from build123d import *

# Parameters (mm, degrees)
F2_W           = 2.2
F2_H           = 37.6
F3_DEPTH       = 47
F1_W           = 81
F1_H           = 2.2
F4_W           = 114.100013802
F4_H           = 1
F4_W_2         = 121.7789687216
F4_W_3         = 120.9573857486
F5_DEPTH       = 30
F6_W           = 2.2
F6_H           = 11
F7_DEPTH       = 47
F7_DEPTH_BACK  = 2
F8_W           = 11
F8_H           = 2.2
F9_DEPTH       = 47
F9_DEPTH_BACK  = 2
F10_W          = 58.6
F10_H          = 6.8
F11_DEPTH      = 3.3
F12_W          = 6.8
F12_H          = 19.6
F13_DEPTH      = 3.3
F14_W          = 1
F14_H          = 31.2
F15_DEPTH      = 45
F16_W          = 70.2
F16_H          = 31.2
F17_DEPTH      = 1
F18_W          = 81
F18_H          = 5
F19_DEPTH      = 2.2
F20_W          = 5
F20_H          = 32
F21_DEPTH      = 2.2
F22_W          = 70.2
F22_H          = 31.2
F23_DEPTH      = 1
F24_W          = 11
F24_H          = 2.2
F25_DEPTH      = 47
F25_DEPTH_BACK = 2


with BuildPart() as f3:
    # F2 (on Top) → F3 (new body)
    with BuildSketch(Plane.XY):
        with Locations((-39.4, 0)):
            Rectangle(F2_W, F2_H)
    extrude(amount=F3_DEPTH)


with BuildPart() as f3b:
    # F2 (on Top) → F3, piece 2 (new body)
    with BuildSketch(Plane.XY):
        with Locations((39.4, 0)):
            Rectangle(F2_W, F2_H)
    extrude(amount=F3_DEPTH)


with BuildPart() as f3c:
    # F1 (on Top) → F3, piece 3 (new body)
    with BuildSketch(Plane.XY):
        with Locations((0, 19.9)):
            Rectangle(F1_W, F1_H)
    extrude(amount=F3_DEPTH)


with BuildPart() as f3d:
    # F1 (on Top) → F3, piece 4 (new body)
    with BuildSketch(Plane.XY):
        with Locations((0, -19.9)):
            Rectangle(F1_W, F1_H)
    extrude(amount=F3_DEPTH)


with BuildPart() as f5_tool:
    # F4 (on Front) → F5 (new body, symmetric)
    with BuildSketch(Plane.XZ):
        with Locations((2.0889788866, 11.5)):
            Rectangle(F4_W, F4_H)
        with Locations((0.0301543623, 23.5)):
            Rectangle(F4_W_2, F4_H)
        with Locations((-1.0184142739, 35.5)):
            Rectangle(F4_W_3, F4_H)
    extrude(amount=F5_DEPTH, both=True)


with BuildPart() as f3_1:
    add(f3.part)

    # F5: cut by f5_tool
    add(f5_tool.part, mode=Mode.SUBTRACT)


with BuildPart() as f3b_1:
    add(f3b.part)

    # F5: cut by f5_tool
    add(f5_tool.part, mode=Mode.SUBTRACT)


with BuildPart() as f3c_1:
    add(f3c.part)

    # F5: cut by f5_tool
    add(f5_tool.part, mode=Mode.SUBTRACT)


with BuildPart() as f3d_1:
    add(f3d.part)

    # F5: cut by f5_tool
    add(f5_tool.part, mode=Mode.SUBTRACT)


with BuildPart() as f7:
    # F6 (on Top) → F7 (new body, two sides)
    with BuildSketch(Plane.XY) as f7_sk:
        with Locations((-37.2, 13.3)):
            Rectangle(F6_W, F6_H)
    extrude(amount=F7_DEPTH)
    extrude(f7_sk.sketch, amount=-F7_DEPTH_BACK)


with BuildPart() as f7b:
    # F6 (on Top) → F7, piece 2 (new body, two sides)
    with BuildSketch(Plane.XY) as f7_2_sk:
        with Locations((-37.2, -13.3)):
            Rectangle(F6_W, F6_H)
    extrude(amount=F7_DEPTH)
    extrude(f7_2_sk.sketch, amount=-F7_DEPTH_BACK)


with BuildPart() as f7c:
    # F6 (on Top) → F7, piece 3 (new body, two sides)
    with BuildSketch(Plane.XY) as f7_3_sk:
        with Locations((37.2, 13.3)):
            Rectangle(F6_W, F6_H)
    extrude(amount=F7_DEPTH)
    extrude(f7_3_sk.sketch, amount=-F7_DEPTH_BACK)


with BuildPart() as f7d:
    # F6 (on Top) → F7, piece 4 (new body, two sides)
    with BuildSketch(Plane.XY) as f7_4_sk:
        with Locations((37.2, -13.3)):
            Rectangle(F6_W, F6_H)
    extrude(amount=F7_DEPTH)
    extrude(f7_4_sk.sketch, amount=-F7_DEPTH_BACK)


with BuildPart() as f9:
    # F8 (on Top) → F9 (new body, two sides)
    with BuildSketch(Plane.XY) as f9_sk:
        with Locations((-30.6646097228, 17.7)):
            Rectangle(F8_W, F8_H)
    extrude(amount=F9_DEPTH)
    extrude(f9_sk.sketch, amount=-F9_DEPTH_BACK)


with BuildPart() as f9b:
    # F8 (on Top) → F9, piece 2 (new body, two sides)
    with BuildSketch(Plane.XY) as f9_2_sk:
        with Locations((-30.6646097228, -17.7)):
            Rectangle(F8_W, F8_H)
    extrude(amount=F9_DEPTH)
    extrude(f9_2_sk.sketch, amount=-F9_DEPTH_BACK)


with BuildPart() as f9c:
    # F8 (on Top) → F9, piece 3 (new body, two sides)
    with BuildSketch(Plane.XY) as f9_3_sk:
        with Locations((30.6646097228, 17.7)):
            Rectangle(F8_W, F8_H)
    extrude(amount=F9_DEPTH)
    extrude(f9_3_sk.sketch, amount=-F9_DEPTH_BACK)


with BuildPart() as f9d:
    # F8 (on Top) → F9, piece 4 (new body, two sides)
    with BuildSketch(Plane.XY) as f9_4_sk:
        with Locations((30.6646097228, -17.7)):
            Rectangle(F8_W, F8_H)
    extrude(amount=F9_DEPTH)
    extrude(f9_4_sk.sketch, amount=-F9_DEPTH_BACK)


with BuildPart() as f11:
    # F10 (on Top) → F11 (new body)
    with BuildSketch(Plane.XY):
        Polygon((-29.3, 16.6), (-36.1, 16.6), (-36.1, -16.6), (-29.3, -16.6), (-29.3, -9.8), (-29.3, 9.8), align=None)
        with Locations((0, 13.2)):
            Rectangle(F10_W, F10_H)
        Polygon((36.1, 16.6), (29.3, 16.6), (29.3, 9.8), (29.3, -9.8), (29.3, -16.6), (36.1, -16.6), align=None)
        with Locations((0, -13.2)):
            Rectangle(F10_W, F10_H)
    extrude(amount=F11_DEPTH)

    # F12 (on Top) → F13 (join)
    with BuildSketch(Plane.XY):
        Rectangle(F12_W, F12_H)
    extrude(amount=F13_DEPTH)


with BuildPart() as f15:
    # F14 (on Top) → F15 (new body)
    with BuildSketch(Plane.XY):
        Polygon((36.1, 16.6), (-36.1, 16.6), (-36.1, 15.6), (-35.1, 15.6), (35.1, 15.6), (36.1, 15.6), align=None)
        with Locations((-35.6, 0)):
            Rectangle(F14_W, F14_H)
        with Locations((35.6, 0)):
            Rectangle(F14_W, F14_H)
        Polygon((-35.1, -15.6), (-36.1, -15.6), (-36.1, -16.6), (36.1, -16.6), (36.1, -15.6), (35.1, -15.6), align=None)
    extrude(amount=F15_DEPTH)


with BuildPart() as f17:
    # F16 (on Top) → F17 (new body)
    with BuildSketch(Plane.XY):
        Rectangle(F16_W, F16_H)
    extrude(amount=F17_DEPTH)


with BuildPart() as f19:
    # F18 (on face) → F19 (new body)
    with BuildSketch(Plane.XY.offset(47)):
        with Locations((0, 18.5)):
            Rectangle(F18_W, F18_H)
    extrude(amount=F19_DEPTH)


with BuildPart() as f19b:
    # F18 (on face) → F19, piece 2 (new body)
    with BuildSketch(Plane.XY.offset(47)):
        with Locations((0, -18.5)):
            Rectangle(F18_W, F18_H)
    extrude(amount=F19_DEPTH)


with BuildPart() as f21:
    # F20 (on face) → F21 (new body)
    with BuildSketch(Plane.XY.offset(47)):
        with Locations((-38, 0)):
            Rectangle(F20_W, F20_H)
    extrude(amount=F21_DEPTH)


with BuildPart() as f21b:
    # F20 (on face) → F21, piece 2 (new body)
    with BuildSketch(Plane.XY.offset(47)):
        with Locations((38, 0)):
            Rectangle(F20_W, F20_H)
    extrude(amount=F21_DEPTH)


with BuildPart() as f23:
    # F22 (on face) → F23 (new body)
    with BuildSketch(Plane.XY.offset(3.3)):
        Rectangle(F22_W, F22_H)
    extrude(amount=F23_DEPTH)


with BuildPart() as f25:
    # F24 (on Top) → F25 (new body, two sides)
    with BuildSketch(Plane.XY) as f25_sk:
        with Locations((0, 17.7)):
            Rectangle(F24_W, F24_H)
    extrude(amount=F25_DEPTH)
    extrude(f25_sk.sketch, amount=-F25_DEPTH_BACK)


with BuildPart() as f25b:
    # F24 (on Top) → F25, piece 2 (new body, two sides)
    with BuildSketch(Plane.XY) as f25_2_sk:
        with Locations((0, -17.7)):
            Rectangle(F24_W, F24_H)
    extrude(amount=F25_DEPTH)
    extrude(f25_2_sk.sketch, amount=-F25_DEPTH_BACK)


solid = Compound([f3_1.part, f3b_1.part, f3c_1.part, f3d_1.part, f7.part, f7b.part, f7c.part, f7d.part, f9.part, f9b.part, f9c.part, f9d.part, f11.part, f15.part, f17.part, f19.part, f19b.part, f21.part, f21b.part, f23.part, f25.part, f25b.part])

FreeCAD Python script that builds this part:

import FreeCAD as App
import Part
import Sketcher

V = App.Vector
Q = App.Units.Quantity


def add_polygon(sketch, points):
    """Adds a closed chain of lines whose ends are joined by coincident constraints."""
    first, n = sketch.GeometryCount, len(points)
    for a, b in zip(points, points[1:] + points[:1]):
        sketch.addGeometry(Part.LineSegment(App.Vector(*a, 0), App.Vector(*b, 0)), False)
    for i in range(n):
        sketch.addConstraint(Sketcher.Constraint("Coincident", first + i, 2, first + (i + 1) % n, 1))

doc = App.newDocument("Part")
params = doc.addObject("Spreadsheet::Sheet", "Params")
for row, (alias, value) in enumerate([
    ("sketch1_width", "2.2 mm"),
    ("sketch1_height", "37.6 mm"),
    ("pad1_length", "47 mm"),
    ("sketch2_width", "2.2 mm"),
    ("sketch2_height", "37.6 mm"),
    ("pad2_length", "47 mm"),
    ("sketch3_width", "81 mm"),
    ("sketch3_height", "2.2 mm"),
    ("pad3_length", "47 mm"),
    ("sketch4_width", "81 mm"),
    ("sketch4_height", "2.2 mm"),
    ("pad4_length", "47 mm"),
    ("sketch5_height", "1 mm"),
    ("pad5_length", "60 mm"),
    ("sketch6_height", "11 mm"),
    ("sketch6_width", "2.2 mm"),
    ("pad6_length", "47 mm"),
    ("pad6_length2", "2 mm"),
    ("sketch7_height", "11 mm"),
    ("sketch7_width", "2.2 mm"),
    ("pad7_length", "47 mm"),
    ("pad7_length2", "2 mm"),
    ("sketch8_height", "11 mm"),
    ("sketch8_width", "2.2 mm"),
    ("pad8_length", "47 mm"),
    ("pad8_length2", "2 mm"),
    ("sketch9_height", "11 mm"),
    ("sketch9_width", "2.2 mm"),
    ("pad9_length", "47 mm"),
    ("pad9_length2", "2 mm"),
    ("sketch10_width", "11 mm"),
    ("sketch10_height", "2.2 mm"),
    ("pad10_length", "47 mm"),
    ("pad10_length2", "2 mm"),
    ("sketch11_width", "11 mm"),
    ("sketch11_height", "2.2 mm"),
    ("pad11_length", "47 mm"),
    ("pad11_length2", "2 mm"),
    ("sketch12_width", "11 mm"),
    ("sketch12_height", "2.2 mm"),
    ("pad12_length", "47 mm"),
    ("pad12_length2", "2 mm"),
    ("sketch13_width", "11 mm"),
    ("sketch13_height", "2.2 mm"),
    ("pad13_length", "47 mm"),
    ("pad13_length2", "2 mm"),
    ("sketch14_width", "72.2 mm"),
    ("sketch14_width2", "58.6 mm"),
    ("sketch14_height", "33.2 mm"),
    ("sketch14_height2", "19.6 mm"),
    ("pad14_length", "3.3 mm"),
    ("sketch15_width", "6.8 mm"),
    ("sketch15_height", "19.6 mm"),
    ("pad15_length", "3.3 mm"),
    ("sketch16_width", "72.2 mm"),
    ("sketch16_width2", "70.2 mm"),
    ("sketch16_height", "33.2 mm"),
    ("sketch16_height2", "31.2 mm"),
    ("pad16_length", "45 mm"),
    ("sketch17_width", "70.2 mm"),
    ("sketch17_height", "31.2 mm"),
    ("pad17_length", "1 mm"),
    ("sketch18_width", "81 mm"),
    ("sketch18_height", "5 mm"),
    ("pad18_length", "2.2 mm"),
    ("sketch19_width", "81 mm"),
    ("sketch19_height", "5 mm"),
    ("pad19_length", "2.2 mm"),
    ("sketch20_width", "5 mm"),
    ("sketch20_height", "32 mm"),
    ("pad20_length", "2.2 mm"),
    ("sketch21_width", "5 mm"),
    ("sketch21_height", "32 mm"),
    ("pad21_length", "2.2 mm"),
    ("sketch22_width", "70.2 mm"),
    ("sketch22_height", "31.2 mm"),
    ("pad22_length", "1 mm"),
    ("sketch23_width", "11 mm"),
    ("sketch23_height", "2.2 mm"),
    ("pad23_length", "47 mm"),
    ("pad23_length2", "2 mm"),
    ("sketch24_width", "11 mm"),
    ("sketch24_height", "2.2 mm"),
    ("pad24_length", "47 mm"),
    ("pad24_length2", "2 mm"),
], start=1):
    params.set(f"A{row}", alias)
    params.set(f"B{row}", "=" + value)
    params.setAlias(f"B{row}", alias)

body = doc.addObject("PartDesign::Body", "Body")

# Sketch on XY plane
sketch1 = doc.addObject("Sketcher::SketchObject", "Sketch")
body.addObject(sketch1)
sketch1.AttachmentSupport = (doc.XY_Plane, [""])
sketch1.MapMode = "FlatFace"
add_polygon(sketch1, [(-40.5, 18.8), (-40.5, -18.8), (-38.3, -18.8), (-38.3, 18.8)])  # lines 0-3
sketch1.addConstraint([
    Sketcher.Constraint("Vertical", 0),
    Sketcher.Constraint("Horizontal", 1),
    Sketcher.Constraint("Vertical", 2),
    Sketcher.Constraint("Horizontal", 3),
    Sketcher.Constraint("DistanceX", 1, 1, 1, 2, Q("2.2 mm")),
    Sketcher.Constraint("DistanceY", 0, 2, 0, 1, Q("37.6 mm")),
    Sketcher.Constraint("DistanceX", 0, 2, -1, 1, Q("40.5 mm")),
    Sketcher.Constraint("DistanceY", 0, 2, -1, 1, Q("18.8 mm")),
])
sketch1.setExpression("Constraints[8]", "Params.sketch1_width")
sketch1.setExpression("Constraints[9]", "Params.sketch1_height")
pad1 = doc.addObject("PartDesign::Pad", "Pad")
body.addObject(pad1)
pad1.Profile = sketch1
pad1.setExpression("Length", "Params.pad1_length")
body2 = doc.addObject("PartDesign::Body", "Body001")

# Sketch on XY plane
sketch2 = doc.addObject("Sketcher::SketchObject", "Sketch001")
body2.addObject(sketch2)
sketch2.AttachmentSupport = (doc.getObject("XY_Plane001"), [""])
sketch2.MapMode = "FlatFace"
add_polygon(sketch2, [(38.3, 18.8), (38.3, -18.8), (40.5, -18.8), (40.5, 18.8)])  # lines 0-3
sketch2.addConstraint([
    Sketcher.Constraint("Vertical", 0),
    Sketcher.Constraint("Horizontal", 1),
    Sketcher.Constraint("Vertical", 2),
    Sketcher.Constraint("Horizontal", 3),
    Sketcher.Constraint("DistanceX", 1, 1, 1, 2, Q("2.2 mm")),
    Sketcher.Constraint("DistanceY", 0, 2, 0, 1, Q("37.6 mm")),
    Sketcher.Constraint("DistanceX", -1, 1, 0, 2, Q("38.3 mm")),
    Sketcher.Constraint("DistanceY", 0, 2, -1, 1, Q("18.8 mm")),
])
sketch2.setExpression("Constraints[8]", "Params.sketch2_width")
sketch2.setExpression("Constraints[9]", "Params.sketch2_height")
pad2 = doc.addObject("PartDesign::Pad", "Pad001")
body2.addObject(pad2)
pad2.Profile = sketch2
pad2.setExpression("Length", "Params.pad2_length")
body3 = doc.addObject("PartDesign::Body", "Body002")

# Sketch on XY plane
sketch3 = doc.addObject("Sketcher::SketchObject", "Sketch002")
body3.addObject(sketch3)
sketch3.AttachmentSupport = (doc.getObject("XY_Plane002"), [""])
sketch3.MapMode = "FlatFace"
add_polygon(sketch3, [(-40.5, 21), (-40.5, 18.8), (40.5, 18.8), (40.5, 21)])  # lines 0-3
sketch3.addConstraint([
    Sketcher.Constraint("Vertical", 0),
    Sketcher.Constraint("Horizontal", 1),
    Sketcher.Constraint("Vertical", 2),
    Sketcher.Constraint("Horizontal", 3),
    Sketcher.Constraint("DistanceX", 1, 1, 1, 2, Q("81 mm")),
    Sketcher.Constraint("DistanceY", 0, 2, 0, 1, Q("2.2 mm")),
    Sketcher.Constraint("DistanceY", -1, 1, 2, 2, Q("21 mm")),
    Sketcher.Constraint("DistanceX", 0, 2, -1, 1, Q("40.5 mm")),
])
sketch3.setExpression("Constraints[8]", "Params.sketch3_width")
sketch3.setExpression("Constraints[9]", "Params.sketch3_height")
pad3 = doc.addObject("PartDesign::Pad", "Pad002")
body3.addObject(pad3)
pad3.Profile = sketch3
pad3.setExpression("Length", "Params.pad3_length")
body4 = doc.addObject("PartDesign::Body", "Body003")

# Sketch on XY plane
sketch4 = doc.addObject("Sketcher::SketchObject", "Sketch003")
body4.addObject(sketch4)
sketch4.AttachmentSupport = (doc.getObject("XY_Plane003"), [""])
sketch4.MapMode = "FlatFace"
add_polygon(sketch4, [(-40.5, -18.8), (-40.5, -21), (40.5, -21), (40.5, -18.8)])  # lines 0-3
sketch4.addConstraint([
    Sketcher.Constraint("Vertical", 0),
    Sketcher.Constraint("Horizontal", 1),
    Sketcher.Constraint("Vertical", 2),
    Sketcher.Constraint("Horizontal", 3),
    Sketcher.Constraint("DistanceX", 1, 1, 1, 2, Q("81 mm")),
    Sketcher.Constraint("DistanceY", 0, 2, 0, 1, Q("2.2 mm")),
    Sketcher.Constraint("DistanceY", 0, 2, -1, 1, Q("21 mm")),
    Sketcher.Constraint("DistanceX", 0, 2, -1, 1, Q("40.5 mm")),
])
sketch4.setExpression("Constraints[8]", "Params.sketch4_width")
sketch4.setExpression("Constraints[9]", "Params.sketch4_height")
pad4 = doc.addObject("PartDesign::Pad", "Pad003")
body4.addObject(pad4)
pad4.Profile = sketch4
pad4.setExpression("Length", "Params.pad4_length")
body5 = doc.addObject("PartDesign::Body", "Body004")
body5.AllowCompound = True

# Sketch on XZ plane
sketch5 = doc.addObject("Sketcher::SketchObject", "Sketch004")
body5.addObject(sketch5)
sketch5.AttachmentSupport = (doc.getObject("XZ_Plane004"), [""])
sketch5.MapMode = "FlatFace"
add_polygon(sketch5, [(-55, 12), (-55, 11), (59.1, 11), (59.1, 12)])  # lines 0-3
add_polygon(sketch5, [(-60.9, 24), (-60.9, 23), (60.9, 23), (60.9, 24)])  # lines 4-7
add_polygon(sketch5, [(-61.5, 36), (-61.5, 35), (59.5, 35), (59.5, 36)])  # lines 8-11
sketch5.addConstraint([
    Sketcher.Constraint("Vertical", 0),
    Sketcher.Constraint("Horizontal", 1),
    Sketcher.Constraint("Vertical", 2),
    Sketcher.Constraint("Horizontal", 3),
    Sketcher.Constraint("Vertical", 4),
    Sketcher.Constraint("Horizontal", 5),
    Sketcher.Constraint("Vertical", 6),
    Sketcher.Constraint("Horizontal", 7),
    Sketcher.Constraint("Vertical", 8),
    Sketcher.Constraint("Horizontal", 9),
    Sketcher.Constraint("Vertical", 10),
    Sketcher.Constraint("Horizontal", 11),
    Sketcher.Constraint("Equal", 2, 4),
    Sketcher.Constraint("Equal", 6, 8),
    Sketcher.Constraint("DistanceY", 0, 2, 0, 1, Q("1 mm")),
    Sketcher.Constraint("DistanceY", -1, 1, 0, 2, Q("11 mm")),
    Sketcher.Constraint("DistanceY", -1, 1, 4, 2, Q("23 mm")),
    Sketcher.Constraint("DistanceY", -1, 1, 8, 2, Q("35 mm")),
    Sketcher.Constraint("DistanceX", 5, 1, 5, 2, Q("121.778969 mm")),
    Sketcher.Constraint("DistanceX", 4, 2, 3, 2, Q("5.898302 mm")),
    Sketcher.Constraint("DistanceX", 1, 1, 1, 2, Q("114.100014 mm")),
    Sketcher.Constraint("DistanceX", 9, 1, 9, 2, Q("120.957386 mm")),
    Sketcher.Constraint("DistanceX", 0, 2, -1, 1, Q("54.961028 mm")),
    Sketcher.Constraint("DistanceX", -1, 1, 9, 2, Q("59.460279 mm")),
])
sketch5.setExpression("Constraints[26]", "Params.sketch5_height")
pad5 = doc.addObject("PartDesign::Pad", "Pad004")
body5.addObject(pad5)
pad5.Profile = sketch5
pad5.setExpression("Length", "Params.pad5_length")
pad5.Midplane = True
body.AllowCompound = True
doc.recompute()

body6 = doc.addObject("PartDesign::Body", "Body005")
body6.BaseFeature = body5
boolean = doc.addObject("PartDesign::Boolean", "Boolean")
body.addObject(boolean)
boolean.Type = "Cut"
boolean.addObjects([body6])
doc.recompute()
body2.AllowCompound = True
doc.recompute()

body7 = doc.addObject("PartDesign::Body", "Body006")
body7.BaseFeature = body5
boolean2 = doc.addObject("PartDesign::Boolean", "Boolean001")
body2.addObject(boolean2)
boolean2.Type = "Cut"
boolean2.addObjects([body7])
doc.recompute()
body3.AllowCompound = True
doc.recompute()

body8 = doc.addObject("PartDesign::Body", "Body007")
body8.BaseFeature = body5
boolean3 = doc.addObject("PartDesign::Boolean", "Boolean002")
body3.addObject(boolean3)
boolean3.Type = "Cut"
boolean3.addObjects([body8])
doc.recompute()
body4.AllowCompound = True
doc.recompute()

boolean4 = doc.addObject("PartDesign::Boolean", "Boolean003")
body4.addObject(boolean4)
boolean4.Type = "Cut"
boolean4.addObjects([body5])
body9 = doc.addObject("PartDesign::Body", "Body008")

# Sketch on XY plane
sketch6 = doc.addObject("Sketcher::SketchObject", "Sketch005")
body9.addObject(sketch6)
sketch6.AttachmentSupport = (doc.getObject("XY_Plane008"), [""])
sketch6.MapMode = "FlatFace"
add_polygon(sketch6, [(-38.3, 18.8), (-38.3, 7.8), (-36.1, 7.8), (-36.1, 18.8)])  # lines 0-3
sketch6.addConstraint([
    Sketcher.Constraint("Vertical", 0),
    Sketcher.Constraint("Horizontal", 1),
    Sketcher.Constraint("Vertical", 2),
    Sketcher.Constraint("Horizontal", 3),
    Sketcher.Constraint("DistanceY", 0, 2, 0, 1, Q("11 mm")),
    Sketcher.Constraint("DistanceX", 1, 1, 1, 2, Q("2.2 mm")),
    Sketcher.Constraint("DistanceX", 0, 2, -1, 1, Q("38.3 mm")),
    Sketcher.Constraint("DistanceY", -1, 1, 0, 2, Q("7.8 mm")),
])
sketch6.setExpression("Constraints[8]", "Params.sketch6_height")
sketch6.setExpression("Constraints[9]", "Params.sketch6_width")
pad6 = doc.addObject("PartDesign::Pad", "Pad005")
body9.addObject(pad6)
pad6.Profile = sketch6
pad6.Type = "TwoLengths"
pad6.setExpression("Length", "Params.pad6_length")
pad6.setExpression("Length2", "Params.pad6_length2")
body10 = doc.addObject("PartDesign::Body", "Body009")

# Sketch on XY plane
sketch7 = doc.addObject("Sketcher::SketchObject", "Sketch006")
body10.addObject(sketch7)
sketch7.AttachmentSupport = (doc.getObject("XY_Plane009"), [""])
sketch7.MapMode = "FlatFace"
add_polygon(sketch7, [(-38.3, -7.8), (-38.3, -18.8), (-36.1, -18.8), (-36.1, -7.8)])  # lines 0-3
sketch7.addConstraint([
    Sketcher.Constraint("Vertical", 0),
    Sketcher.Constraint("Horizontal", 1),
    Sketcher.Constraint("Vertical", 2),
    Sketcher.Constraint("Horizontal", 3),
    Sketcher.Constraint("DistanceY", 0, 2, 0, 1, Q("11 mm")),
    Sketcher.Constraint("DistanceX", 1, 1, 1, 2, Q("2.2 mm")),
    Sketcher.Constraint("DistanceX", 0, 2, -1, 1, Q("38.3 mm")),
    Sketcher.Constraint("DistanceY", 0, 2, -1, 1, Q("18.8 mm")),
])
sketch7.setExpression("Constraints[8]", "Params.sketch7_height")
sketch7.setExpression("Constraints[9]", "Params.sketch7_width")
pad7 = doc.addObject("PartDesign::Pad", "Pad006")
body10.addObject(pad7)
pad7.Profile = sketch7
pad7.Type = "TwoLengths"
pad7.setExpression("Length", "Params.pad7_length")
pad7.setExpression("Length2", "Params.pad7_length2")
body11 = doc.addObject("PartDesign::Body", "Body010")

# Sketch on XY plane
sketch8 = doc.addObject("Sketcher::SketchObject", "Sketch007")
body11.addObject(sketch8)
sketch8.AttachmentSupport = (doc.getObject("XY_Plane010"), [""])
sketch8.MapMode = "FlatFace"
add_polygon(sketch8, [(36.1, 18.8), (36.1, 7.8), (38.3, 7.8), (38.3, 18.8)])  # lines 0-3
sketch8.addConstraint([
    Sketcher.Constraint("Vertical", 0),
    Sketcher.Constraint("Horizontal", 1),
    Sketcher.Constraint("Vertical", 2),
    Sketcher.Constraint("Horizontal", 3),
    Sketcher.Constraint("DistanceY", 0, 2, 0, 1, Q("11 mm")),
    Sketcher.Constraint("DistanceX", 1, 1, 1, 2, Q("2.2 mm")),
    Sketcher.Constraint("DistanceX", -1, 1, 0, 2, Q("36.1 mm")),
    Sketcher.Constraint("DistanceY", -1, 1, 0, 2, Q("7.8 mm")),
])
sketch8.setExpression("Constraints[8]", "Params.sketch8_height")
sketch8.setExpression("Constraints[9]", "Params.sketch8_width")
pad8 = doc.addObject("PartDesign::Pad", "Pad007")
body11.addObject(pad8)
pad8.Profile = sketch8
pad8.Type = "TwoLengths"
pad8.setExpression("Length", "Params.pad8_length")
pad8.setExpression("Length2", "Params.pad8_length2")
body12 = doc.addObject("PartDesign::Body", "Body011")

# Sketch on XY plane
sketch9 = doc.addObject("Sketcher::SketchObject", "Sketch008")
body12.addObject(sketch9)
sketch9.AttachmentSupport = (doc.getObject("XY_Plane011"), [""])
sketch9.MapMode = "FlatFace"
add_polygon(sketch9, [(36.1, -7.8), (36.1, -18.8), (38.3, -18.8), (38.3, -7.8)])  # lines 0-3
sketch9.addConstraint([
    Sketcher.Constraint("Vertical", 0),
    Sketcher.Constraint("Horizontal", 1),
    Sketcher.Constraint("Vertical", 2),
    Sketcher.Constraint("Horizontal", 3),
    Sketcher.Constraint("DistanceY", 0, 2, 0, 1, Q("11 mm")),
    Sketcher.Constraint("DistanceX", 1, 1, 1, 2, Q("2.2 mm")),
    Sketcher.Constraint("DistanceX", -1, 1, 0, 2, Q("36.1 mm")),
    Sketcher.Constraint("DistanceY", 0, 2, -1, 1, Q("18.8 mm")),
])
sketch9.setExpression("Constraints[8]", "Params.sketch9_height")
sketch9.setExpression("Constraints[9]", "Params.sketch9_width")
pad9 = doc.addObject("PartDesign::Pad", "Pad008")
body12.addObject(pad9)
pad9.Profile = sketch9
pad9.Type = "TwoLengths"
pad9.setExpression("Length", "Params.pad9_length")
pad9.setExpression("Length2", "Params.pad9_length2")
body13 = doc.addObject("PartDesign::Body", "Body012")

# Sketch on XY plane
sketch10 = doc.addObject("Sketcher::SketchObject", "Sketch009")
body13.addObject(sketch10)
sketch10.AttachmentSupport = (doc.getObject("XY_Plane012"), [""])
sketch10.MapMode = "FlatFace"
add_polygon(sketch10, [(-36.2, 18.8), (-36.2, 16.6), (-25.2, 16.6), (-25.2, 18.8)])  # lines 0-3
sketch10.addConstraint([
    Sketcher.Constraint("Vertical", 0),
    Sketcher.Constraint("Horizontal", 1),
    Sketcher.Constraint("Vertical", 2),
    Sketcher.Constraint("Horizontal", 3),
    Sketcher.Constraint("DistanceX", 1, 1, 1, 2, Q("11 mm")),
    Sketcher.Constraint("DistanceY", 0, 2, 0, 1, Q("2.2 mm")),
    Sketcher.Constraint("DistanceY", -1, 1, 0, 2, Q("16.6 mm")),
    Sketcher.Constraint("DistanceX", 0, 2, -1, 1, Q("36.16461 mm")),
])
sketch10.setExpression("Constraints[8]", "Params.sketch10_width")
sketch10.setExpression("Constraints[9]", "Params.sketch10_height")
pad10 = doc.addObject("PartDesign::Pad", "Pad009")
body13.addObject(pad10)
pad10.Profile = sketch10
pad10.Type = "TwoLengths"
pad10.setExpression("Length", "Params.pad10_length")
pad10.setExpression("Length2", "Params.pad10_length2")
body14 = doc.addObject("PartDesign::Body", "Body013")

# Sketch on XY plane
sketch11 = doc.addObject("Sketcher::SketchObject", "Sketch010")
body14.addObject(sketch11)
sketch11.AttachmentSupport = (doc.getObject("XY_Plane013"), [""])
sketch11.MapMode = "FlatFace"
add_polygon(sketch11, [(-36.2, -16.6), (-36.2, -18.8), (-25.2, -18.8), (-25.2, -16.6)])  # lines 0-3
sketch11.addConstraint([
    Sketcher.Constraint("Vertical", 0),
    Sketcher.Constraint("Horizontal", 1),
    Sketcher.Constraint("Vertical", 2),
    Sketcher.Constraint("Horizontal", 3),
    Sketcher.Constraint("DistanceX", 1, 1, 1, 2, Q("11 mm")),
    Sketcher.Constraint("DistanceY", 0, 2, 0, 1, Q("2.2 mm")),
    Sketcher.Constraint("DistanceY", 0, 2, -1, 1, Q("18.8 mm")),
    Sketcher.Constraint("DistanceX", 0, 2, -1, 1, Q("36.16461 mm")),
])
sketch11.setExpression("Constraints[8]", "Params.sketch11_width")
sketch11.setExpression("Constraints[9]", "Params.sketch11_height")
pad11 = doc.addObject("PartDesign::Pad", "Pad010")
body14.addObject(pad11)
pad11.Profile = sketch11
pad11.Type = "TwoLengths"
pad11.setExpression("Length", "Params.pad11_length")
pad11.setExpression("Length2", "Params.pad11_length2")
body15 = doc.addObject("PartDesign::Body", "Body014")

# Sketch on XY plane
sketch12 = doc.addObject("Sketcher::SketchObject", "Sketch011")
body15.addObject(sketch12)
sketch12.AttachmentSupport = (doc.getObject("XY_Plane014"), [""])
sketch12.MapMode = "FlatFace"
add_polygon(sketch12, [(25.2, 18.8), (25.2, 16.6), (36.2, 16.6), (36.2, 18.8)])  # lines 0-3
sketch12.addConstraint([
    Sketcher.Constraint("Vertical", 0),
    Sketcher.Constraint("Horizontal", 1),
    Sketcher.Constraint("Vertical", 2),
    Sketcher.Constraint("Horizontal", 3),
    Sketcher.Constraint("DistanceX", 1, 1, 1, 2, Q("11 mm")),
    Sketcher.Constraint("DistanceY", 0, 2, 0, 1, Q("2.2 mm")),
    Sketcher.Constraint("DistanceY", -1, 1, 0, 2, Q("16.6 mm")),
    Sketcher.Constraint("DistanceX", -1, 1, 0, 2, Q("25.16461 mm")),
])
sketch12.setExpression("Constraints[8]", "Params.sketch12_width")
sketch12.setExpression("Constraints[9]", "Params.sketch12_height")
pad12 = doc.addObject("PartDesign::Pad", "Pad011")
body15.addObject(pad12)
pad12.Profile = sketch12
pad12.Type = "TwoLengths"
pad12.setExpression("Length", "Params.pad12_length")
pad12.setExpression("Length2", "Params.pad12_length2")
body16 = doc.addObject("PartDesign::Body", "Body015")

# Sketch on XY plane
sketch13 = doc.addObject("Sketcher::SketchObject", "Sketch012")
body16.addObject(sketch13)
sketch13.AttachmentSupport = (doc.getObject("XY_Plane015"), [""])
sketch13.MapMode = "FlatFace"
add_polygon(sketch13, [(25.2, -16.6), (25.2, -18.8), (36.2, -18.8), (36.2, -16.6)])  # lines 0-3
sketch13.addConstraint([
    Sketcher.Constraint("Vertical", 0),
    Sketcher.Constraint("Horizontal", 1),
    Sketcher.Constraint("Vertical", 2),
    Sketcher.Constraint("Horizontal", 3),
    Sketcher.Constraint("DistanceX", 1, 1, 1, 2, Q("11 mm")),
    Sketcher.Constraint("DistanceY", 0, 2, 0, 1, Q("2.2 mm")),
    Sketcher.Constraint("DistanceY", 0, 2, -1, 1, Q("18.8 mm")),
    Sketcher.Constraint("DistanceX", -1, 1, 0, 2, Q("25.16461 mm")),
])
sketch13.setExpression("Constraints[8]", "Params.sketch13_width")
sketch13.setExpression("Constraints[9]", "Params.sketch13_height")
pad13 = doc.addObject("PartDesign::Pad", "Pad012")
body16.addObject(pad13)
pad13.Profile = sketch13
pad13.Type = "TwoLengths"
pad13.setExpression("Length", "Params.pad13_length")
pad13.setExpression("Length2", "Params.pad13_length2")
body17 = doc.addObject("PartDesign::Body", "Body016")

# Sketch on XY plane
sketch14 = doc.addObject("Sketcher::SketchObject", "Sketch013")
body17.addObject(sketch14)
sketch14.AttachmentSupport = (doc.getObject("XY_Plane016"), [""])
sketch14.MapMode = "FlatFace"
add_polygon(sketch14, [(-36, 17), (-36, -17), (36, -17), (36, 17)])  # lines 0-3
add_polygon(sketch14, [(-29, -10), (-29, 10), (29, 10), (29, -10)])  # lines 4-7
sketch14.addConstraint([
    Sketcher.Constraint("Vertical", 0),
    Sketcher.Constraint("Horizontal", 1),
    Sketcher.Constraint("Vertical", 2),
    Sketcher.Constraint("Horizontal", 3),
    Sketcher.Constraint("Vertical", 4),
    Sketcher.Constraint("Horizontal", 5),
    Sketcher.Constraint("Vertical", 6),
    Sketcher.Constraint("Horizontal", 7),
    Sketcher.Constraint("Symmetric", 0, 2, 2, 2, -1, 1),
    Sketcher.Constraint("Symmetric", 4, 2, 6, 2, -1, 1),
    Sketcher.Constraint("DistanceX", 1, 1, 1, 2, Q("72.2 mm")),
    Sketcher.Constraint("DistanceX", 5, 1, 5, 2, Q("58.6 mm")),
    Sketcher.Constraint("DistanceY", 0, 2, 0, 1, Q("33.2 mm")),
    Sketcher.Constraint("DistanceY", 4, 1, 4, 2, Q("19.6 mm")),
])
sketch14.setExpression("Constraints[18]", "Params.sketch14_width")
sketch14.setExpression("Constraints[19]", "Params.sketch14_width2")
sketch14.setExpression("Constraints[20]", "Params.sketch14_height")
sketch14.setExpression("Constraints[21]", "Params.sketch14_height2")
pad14 = doc.addObject("PartDesign::Pad", "Pad013")
body17.addObject(pad14)
pad14.Profile = sketch14
pad14.setExpression("Length", "Params.pad14_length")

# Sketch on XY plane
sketch15 = doc.addObject("Sketcher::SketchObject", "Sketch014")
body17.addObject(sketch15)
sketch15.AttachmentSupport = (doc.getObject("XY_Plane016"), [""])
sketch15.MapMode = "FlatFace"
add_polygon(sketch15, [(-3, 10), (-3, -10), (3, -10), (3, 10)])  # lines 0-3
sketch15.addConstraint([
    Sketcher.Constraint("Vertical", 0),
    Sketcher.Constraint("Horizontal", 1),
    Sketcher.Constraint("Vertical", 2),
    Sketcher.Constraint("Horizontal", 3),
    Sketcher.Constraint("Symmetric", 0, 2, 2, 2, -1, 1),
    Sketcher.Constraint("DistanceX", 1, 1, 1, 2, Q("6.8 mm")),
    Sketcher.Constraint("DistanceY", 0, 2, 0, 1, Q("19.6 mm")),
])
sketch15.setExpression("Constraints[9]", "Params.sketch15_width")
sketch15.setExpression("Constraints[10]", "Params.sketch15_height")
pad15 = doc.addObject("PartDesign::Pad", "Pad014")
body17.addObject(pad15)
pad15.Profile = sketch15
pad15.setExpression("Length", "Params.pad15_length")
body18 = doc.addObject("PartDesign::Body", "Body017")

# Sketch on XY plane
sketch16 = doc.addObject("Sketcher::SketchObject", "Sketch015")
body18.addObject(sketch16)
sketch16.AttachmentSupport = (doc.getObject("XY_Plane017"), [""])
sketch16.MapMode = "FlatFace"
add_polygon(sketch16, [(36, 17), (-36, 17), (-36, -17), (36, -17)])  # lines 0-3
add_polygon(sketch16, [(-35, -16), (-35, 16), (35, 16), (35, -16)])  # lines 4-7
sketch16.addConstraint([
    Sketcher.Constraint("Horizontal", 0),
    Sketcher.Constraint("Vertical", 1),
    Sketcher.Constraint("Horizontal", 2),
    Sketcher.Constraint("Vertical", 3),
    Sketcher.Constraint("Vertical", 4),
    Sketcher.Constraint("Horizontal", 5),
    Sketcher.Constraint("Vertical", 6),
    Sketcher.Constraint("Horizontal", 7),
    Sketcher.Constraint("Symmetric", 0, 2, 2, 2, -1, 1),
    Sketcher.Constraint("Symmetric", 4, 2, 6, 2, -1, 1),
    Sketcher.Constraint("DistanceX", 0, 2, 0, 1, Q("72.2 mm")),
    Sketcher.Constraint("DistanceX", 5, 1, 5, 2, Q("70.2 mm")),
    Sketcher.Constraint("DistanceY", 1, 2, 1, 1, Q("33.2 mm")),
    Sketcher.Constraint("DistanceY", 4, 1, 4, 2, Q("31.2 mm")),
])
sketch16.setExpression("Constraints[18]", "Params.sketch16_width")
sketch16.setExpression("Constraints[19]", "Params.sketch16_width2")
sketch16.setExpression("Constraints[20]", "Params.sketch16_height")
sketch16.setExpression("Constraints[21]", "Params.sketch16_height2")
pad16 = doc.addObject("PartDesign::Pad", "Pad015")
body18.addObject(pad16)
pad16.Profile = sketch16
pad16.setExpression("Length", "Params.pad16_length")
body19 = doc.addObject("PartDesign::Body", "Body018")

# Sketch on XY plane
sketch17 = doc.addObject("Sketcher::SketchObject", "Sketch016")
body19.addObject(sketch17)
sketch17.AttachmentSupport = (doc.getObject("XY_Plane018"), [""])
sketch17.MapMode = "FlatFace"
add_polygon(sketch17, [(-35, 16), (-35, -16), (35, -16), (35, 16)])  # lines 0-3
sketch17.addConstraint([
    Sketcher.Constraint("Vertical", 0),
    Sketcher.Constraint("Horizontal", 1),
    Sketcher.Constraint("Vertical", 2),
    Sketcher.Constraint("Horizontal", 3),
    Sketcher.Constraint("Symmetric", 0, 2, 2, 2, -1, 1),
    Sketcher.Constraint("DistanceX", 1, 1, 1, 2, Q("70.2 mm")),
    Sketcher.Constraint("DistanceY", 0, 2, 0, 1, Q("31.2 mm")),
])
sketch17.setExpression("Constraints[9]", "Params.sketch17_width")
sketch17.setExpression("Constraints[10]", "Params.sketch17_height")
pad17 = doc.addObject("PartDesign::Pad", "Pad016")
body19.addObject(pad17)
pad17.Profile = sketch17
pad17.setExpression("Length", "Params.pad17_length")
body20 = doc.addObject("PartDesign::Body", "Body019")

# Sketch on XY plane
sketch18 = doc.addObject("Sketcher::SketchObject", "Sketch017")
body20.addObject(sketch18)
sketch18.AttachmentSupport = (doc.getObject("XY_Plane019"), [""])
sketch18.MapMode = "FlatFace"
sketch18.AttachmentOffset = App.Placement(V(0, 0, 47), App.Rotation())
add_polygon(sketch18, [(-40, 21), (-40, 16), (40, 16), (40, 21)])  # lines 0-3
sketch18.addConstraint([
    Sketcher.Constraint("Vertical", 0),
    Sketcher.Constraint("Horizontal", 1),
    Sketcher.Constraint("Vertical", 2),
    Sketcher.Constraint("Horizontal", 3),
    Sketcher.Constraint("DistanceX", 1, 1, 1, 2, Q("81 mm")),
    Sketcher.Constraint("DistanceY", 0, 2, 0, 1, Q("5 mm")),
    Sketcher.Constraint("DistanceY", -1, 1, 0, 2, Q("16 mm")),
    Sketcher.Constraint("DistanceX", 0, 2, -1, 1, Q("40.5 mm")),
])
sketch18.setExpression("Constraints[8]", "Params.sketch18_width")
sketch18.setExpression("Constraints[9]", "Params.sketch18_height")
pad18 = doc.addObject("PartDesign::Pad", "Pad017")
body20.addObject(pad18)
pad18.Profile = sketch18
pad18.setExpression("Length", "Params.pad18_length")
body21 = doc.addObject("PartDesign::Body", "Body020")

# Sketch on XY plane
sketch19 = doc.addObject("Sketcher::SketchObject", "Sketch018")
body21.addObject(sketch19)
sketch19.AttachmentSupport = (doc.getObject("XY_Plane020"), [""])
sketch19.MapMode = "FlatFace"
sketch19.AttachmentOffset = App.Placement(V(0, 0, 47), App.Rotation())
add_polygon(sketch19, [(-40, -16), (-40, -21), (40, -21), (40, -16)])  # lines 0-3
sketch19.addConstraint([
    Sketcher.Constraint("Vertical", 0),
    Sketcher.Constraint("Horizontal", 1),
    Sketcher.Constraint("Vertical", 2),
    Sketcher.Constraint("Horizontal", 3),
    Sketcher.Constraint("DistanceX", 1, 1, 1, 2, Q("81 mm")),
    Sketcher.Constraint("DistanceY", 0, 2, 0, 1, Q("5 mm")),
    Sketcher.Constraint("DistanceY", 0, 2, -1, 1, Q("21 mm")),
    Sketcher.Constraint("DistanceX", 0, 2, -1, 1, Q("40.5 mm")),
])
sketch19.setExpression("Constraints[8]", "Params.sketch19_width")
sketch19.setExpression("Constraints[9]", "Params.sketch19_height")
pad19 = doc.addObject("PartDesign::Pad", "Pad018")
body21.addObject(pad19)
pad19.Profile = sketch19
pad19.setExpression("Length", "Params.pad19_length")
body22 = doc.addObject("PartDesign::Body", "Body021")

# Sketch on XY plane
sketch20 = doc.addObject("Sketcher::SketchObject", "Sketch019")
body22.addObject(sketch20)
sketch20.AttachmentSupport = (doc.getObject("XY_Plane021"), [""])
sketch20.MapMode = "FlatFace"
sketch20.AttachmentOffset = App.Placement(V(0, 0, 47), App.Rotation())
add_polygon(sketch20, [(-40, 16), (-40, -16), (-36, -16), (-36, 16)])  # lines 0-3
sketch20.addConstraint([
    Sketcher.Constraint("Vertical", 0),
    Sketcher.Constraint("Horizontal", 1),
    Sketcher.Constraint("Vertical", 2),
    Sketcher.Constraint("Horizontal", 3),
    Sketcher.Constraint("DistanceX", 1, 1, 1, 2, Q("5 mm")),
    Sketcher.Constraint("DistanceY", 0, 2, 0, 1, Q("32 mm")),
    Sketcher.Constraint("DistanceY", 0, 2, -1, 1, Q("16 mm")),
    Sketcher.Constraint("DistanceX", 0, 2, -1, 1, Q("40.5 mm")),
])
sketch20.setExpression("Constraints[8]", "Params.sketch20_width")
sketch20.setExpression("Constraints[9]", "Params.sketch20_height")
pad20 = doc.addObject("PartDesign::Pad", "Pad019")
body22.addObject(pad20)
pad20.Profile = sketch20
pad20.setExpression("Length", "Params.pad20_length")
body23 = doc.addObject("PartDesign::Body", "Body022")

# Sketch on XY plane
sketch21 = doc.addObject("Sketcher::SketchObject", "Sketch020")
body23.addObject(sketch21)
sketch21.AttachmentSupport = (doc.getObject("XY_Plane022"), [""])
sketch21.MapMode = "FlatFace"
sketch21.AttachmentOffset = App.Placement(V(0, 0, 47), App.Rotation())
add_polygon(sketch21, [(36, 16), (36, -16), (40, -16), (40, 16)])  # lines 0-3
sketch21.addConstraint([
    Sketcher.Constraint("Vertical", 0),
    Sketcher.Constraint("Horizontal", 1),
    Sketcher.Constraint("Vertical", 2),
    Sketcher.Constraint("Horizontal", 3),
    Sketcher.Constraint("DistanceX", 1, 1, 1, 2, Q("5 mm")),
    Sketcher.Constraint("DistanceY", 0, 2, 0, 1, Q("32 mm")),
    Sketcher.Constraint("DistanceY", 0, 2, -1, 1, Q("16 mm")),
    Sketcher.Constraint("DistanceX", -1, 1, 0, 2, Q("35.5 mm")),
])
sketch21.setExpression("Constraints[8]", "Params.sketch21_width")
sketch21.setExpression("Constraints[9]", "Params.sketch21_height")
pad21 = doc.addObject("PartDesign::Pad", "Pad020")
body23.addObject(pad21)
pad21.Profile = sketch21
pad21.setExpression("Length", "Params.pad21_length")
body24 = doc.addObject("PartDesign::Body", "Body023")

# Sketch on XY plane
sketch22 = doc.addObject("Sketcher::SketchObject", "Sketch021")
body24.addObject(sketch22)
sketch22.AttachmentSupport = (doc.getObject("XY_Plane023"), [""])
sketch22.MapMode = "FlatFace"
sketch22.AttachmentOffset = App.Placement(V(0, 0, 3.3), App.Rotation())
add_polygon(sketch22, [(-35, 16), (-35, -16), (35, -16), (35, 16)])  # lines 0-3
sketch22.addConstraint([
    Sketcher.Constraint("Vertical", 0),
    Sketcher.Constraint("Horizontal", 1),
    Sketcher.Constraint("Vertical", 2),
    Sketcher.Constraint("Horizontal", 3),
    Sketcher.Constraint("Symmetric", 0, 2, 2, 2, -1, 1),
    Sketcher.Constraint("DistanceX", 1, 1, 1, 2, Q("70.2 mm")),
    Sketcher.Constraint("DistanceY", 0, 2, 0, 1, Q("31.2 mm")),
])
sketch22.setExpression("Constraints[9]", "Params.sketch22_width")
sketch22.setExpression("Constraints[10]", "Params.sketch22_height")
pad22 = doc.addObject("PartDesign::Pad", "Pad021")
body24.addObject(pad22)
pad22.Profile = sketch22
pad22.setExpression("Length", "Params.pad22_length")
body25 = doc.addObject("PartDesign::Body", "Body024")

# Sketch on XY plane
sketch23 = doc.addObject("Sketcher::SketchObject", "Sketch022")
body25.addObject(sketch23)
sketch23.AttachmentSupport = (doc.getObject("XY_Plane024"), [""])
sketch23.MapMode = "FlatFace"
add_polygon(sketch23, [(-5.5, 18.8), (-5.5, 16.6), (5.5, 16.6), (5.5, 18.8)])  # lines 0-3
sketch23.addConstraint([
    Sketcher.Constraint("Vertical", 0),
    Sketcher.Constraint("Horizontal", 1),
    Sketcher.Constraint("Vertical", 2),
    Sketcher.Constraint("Horizontal", 3),
    Sketcher.Constraint("DistanceX", 1, 1, 1, 2, Q("11 mm")),
    Sketcher.Constraint("DistanceY", 0, 2, 0, 1, Q("2.2 mm")),
    Sketcher.Constraint("DistanceX", 0, 2, -1, 1, Q("5.5 mm")),
    Sketcher.Constraint("DistanceY", -1, 1, 0, 2, Q("16.6 mm")),
])
sketch23.setExpression("Constraints[8]", "Params.sketch23_width")
sketch23.setExpression("Constraints[9]", "Params.sketch23_height")
pad23 = doc.addObject("PartDesign::Pad", "Pad022")
body25.addObject(pad23)
pad23.Profile = sketch23
pad23.Type = "TwoLengths"
pad23.setExpression("Length", "Params.pad23_length")
pad23.setExpression("Length2", "Params.pad23_length2")
body26 = doc.addObject("PartDesign::Body", "Body025")

# Sketch on XY plane
sketch24 = doc.addObject("Sketcher::SketchObject", "Sketch023")
body26.addObject(sketch24)
sketch24.AttachmentSupport = (doc.getObject("XY_Plane025"), [""])
sketch24.MapMode = "FlatFace"
add_polygon(sketch24, [(-5.5, -16.6), (-5.5, -18.8), (5.5, -18.8), (5.5, -16.6)])  # lines 0-3
sketch24.addConstraint([
    Sketcher.Constraint("Vertical", 0),
    Sketcher.Constraint("Horizontal", 1),
    Sketcher.Constraint("Vertical", 2),
    Sketcher.Constraint("Horizontal", 3),
    Sketcher.Constraint("DistanceX", 1, 1, 1, 2, Q("11 mm")),
    Sketcher.Constraint("DistanceY", 0, 2, 0, 1, Q("2.2 mm")),
    Sketcher.Constraint("DistanceX", 0, 2, -1, 1, Q("5.5 mm")),
    Sketcher.Constraint("DistanceY", 0, 2, -1, 1, Q("18.8 mm")),
])
sketch24.setExpression("Constraints[8]", "Params.sketch24_width")
sketch24.setExpression("Constraints[9]", "Params.sketch24_height")
pad24 = doc.addObject("PartDesign::Pad", "Pad023")
body26.addObject(pad24)
pad24.Profile = sketch24
pad24.Type = "TwoLengths"
pad24.setExpression("Length", "Params.pad24_length")
pad24.setExpression("Length2", "Params.pad24_length2")

doc.recompute()
